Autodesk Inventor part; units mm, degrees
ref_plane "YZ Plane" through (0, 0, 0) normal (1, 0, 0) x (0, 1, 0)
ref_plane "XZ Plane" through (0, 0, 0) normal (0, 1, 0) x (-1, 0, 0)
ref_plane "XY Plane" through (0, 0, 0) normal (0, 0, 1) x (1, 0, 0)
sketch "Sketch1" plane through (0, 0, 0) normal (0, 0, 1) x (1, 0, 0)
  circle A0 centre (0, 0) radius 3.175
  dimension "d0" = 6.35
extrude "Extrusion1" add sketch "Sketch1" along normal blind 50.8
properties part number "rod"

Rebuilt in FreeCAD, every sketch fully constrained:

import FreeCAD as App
import Part
import Sketcher
Q = App.Units.Quantity

doc = App.newDocument("Part")
body = doc.addObject("PartDesign::Body", "Body")

sketch1 = body.newObject("Sketcher::SketchObject", "Sketch")
sketch1.AttachmentSupport = (doc.getObject("XY_Plane"), [""])
sketch1.MapMode = "FlatFace"
sketch1.addGeometry(Part.Circle(App.Vector(0, 0, 0), App.Vector(0, 0, 1), 3.2), False)
sketch1.addConstraint(Sketcher.Constraint("Coincident", 0, 3, -1, 1))
sketch1.addConstraint(Sketcher.Constraint("Diameter", 0, Q("0.25 in")))
pad1 = body.newObject("PartDesign::Pad", "Pad")
pad1.Profile = sketch1
pad1.Length = Q("2 in")

doc.recompute()
